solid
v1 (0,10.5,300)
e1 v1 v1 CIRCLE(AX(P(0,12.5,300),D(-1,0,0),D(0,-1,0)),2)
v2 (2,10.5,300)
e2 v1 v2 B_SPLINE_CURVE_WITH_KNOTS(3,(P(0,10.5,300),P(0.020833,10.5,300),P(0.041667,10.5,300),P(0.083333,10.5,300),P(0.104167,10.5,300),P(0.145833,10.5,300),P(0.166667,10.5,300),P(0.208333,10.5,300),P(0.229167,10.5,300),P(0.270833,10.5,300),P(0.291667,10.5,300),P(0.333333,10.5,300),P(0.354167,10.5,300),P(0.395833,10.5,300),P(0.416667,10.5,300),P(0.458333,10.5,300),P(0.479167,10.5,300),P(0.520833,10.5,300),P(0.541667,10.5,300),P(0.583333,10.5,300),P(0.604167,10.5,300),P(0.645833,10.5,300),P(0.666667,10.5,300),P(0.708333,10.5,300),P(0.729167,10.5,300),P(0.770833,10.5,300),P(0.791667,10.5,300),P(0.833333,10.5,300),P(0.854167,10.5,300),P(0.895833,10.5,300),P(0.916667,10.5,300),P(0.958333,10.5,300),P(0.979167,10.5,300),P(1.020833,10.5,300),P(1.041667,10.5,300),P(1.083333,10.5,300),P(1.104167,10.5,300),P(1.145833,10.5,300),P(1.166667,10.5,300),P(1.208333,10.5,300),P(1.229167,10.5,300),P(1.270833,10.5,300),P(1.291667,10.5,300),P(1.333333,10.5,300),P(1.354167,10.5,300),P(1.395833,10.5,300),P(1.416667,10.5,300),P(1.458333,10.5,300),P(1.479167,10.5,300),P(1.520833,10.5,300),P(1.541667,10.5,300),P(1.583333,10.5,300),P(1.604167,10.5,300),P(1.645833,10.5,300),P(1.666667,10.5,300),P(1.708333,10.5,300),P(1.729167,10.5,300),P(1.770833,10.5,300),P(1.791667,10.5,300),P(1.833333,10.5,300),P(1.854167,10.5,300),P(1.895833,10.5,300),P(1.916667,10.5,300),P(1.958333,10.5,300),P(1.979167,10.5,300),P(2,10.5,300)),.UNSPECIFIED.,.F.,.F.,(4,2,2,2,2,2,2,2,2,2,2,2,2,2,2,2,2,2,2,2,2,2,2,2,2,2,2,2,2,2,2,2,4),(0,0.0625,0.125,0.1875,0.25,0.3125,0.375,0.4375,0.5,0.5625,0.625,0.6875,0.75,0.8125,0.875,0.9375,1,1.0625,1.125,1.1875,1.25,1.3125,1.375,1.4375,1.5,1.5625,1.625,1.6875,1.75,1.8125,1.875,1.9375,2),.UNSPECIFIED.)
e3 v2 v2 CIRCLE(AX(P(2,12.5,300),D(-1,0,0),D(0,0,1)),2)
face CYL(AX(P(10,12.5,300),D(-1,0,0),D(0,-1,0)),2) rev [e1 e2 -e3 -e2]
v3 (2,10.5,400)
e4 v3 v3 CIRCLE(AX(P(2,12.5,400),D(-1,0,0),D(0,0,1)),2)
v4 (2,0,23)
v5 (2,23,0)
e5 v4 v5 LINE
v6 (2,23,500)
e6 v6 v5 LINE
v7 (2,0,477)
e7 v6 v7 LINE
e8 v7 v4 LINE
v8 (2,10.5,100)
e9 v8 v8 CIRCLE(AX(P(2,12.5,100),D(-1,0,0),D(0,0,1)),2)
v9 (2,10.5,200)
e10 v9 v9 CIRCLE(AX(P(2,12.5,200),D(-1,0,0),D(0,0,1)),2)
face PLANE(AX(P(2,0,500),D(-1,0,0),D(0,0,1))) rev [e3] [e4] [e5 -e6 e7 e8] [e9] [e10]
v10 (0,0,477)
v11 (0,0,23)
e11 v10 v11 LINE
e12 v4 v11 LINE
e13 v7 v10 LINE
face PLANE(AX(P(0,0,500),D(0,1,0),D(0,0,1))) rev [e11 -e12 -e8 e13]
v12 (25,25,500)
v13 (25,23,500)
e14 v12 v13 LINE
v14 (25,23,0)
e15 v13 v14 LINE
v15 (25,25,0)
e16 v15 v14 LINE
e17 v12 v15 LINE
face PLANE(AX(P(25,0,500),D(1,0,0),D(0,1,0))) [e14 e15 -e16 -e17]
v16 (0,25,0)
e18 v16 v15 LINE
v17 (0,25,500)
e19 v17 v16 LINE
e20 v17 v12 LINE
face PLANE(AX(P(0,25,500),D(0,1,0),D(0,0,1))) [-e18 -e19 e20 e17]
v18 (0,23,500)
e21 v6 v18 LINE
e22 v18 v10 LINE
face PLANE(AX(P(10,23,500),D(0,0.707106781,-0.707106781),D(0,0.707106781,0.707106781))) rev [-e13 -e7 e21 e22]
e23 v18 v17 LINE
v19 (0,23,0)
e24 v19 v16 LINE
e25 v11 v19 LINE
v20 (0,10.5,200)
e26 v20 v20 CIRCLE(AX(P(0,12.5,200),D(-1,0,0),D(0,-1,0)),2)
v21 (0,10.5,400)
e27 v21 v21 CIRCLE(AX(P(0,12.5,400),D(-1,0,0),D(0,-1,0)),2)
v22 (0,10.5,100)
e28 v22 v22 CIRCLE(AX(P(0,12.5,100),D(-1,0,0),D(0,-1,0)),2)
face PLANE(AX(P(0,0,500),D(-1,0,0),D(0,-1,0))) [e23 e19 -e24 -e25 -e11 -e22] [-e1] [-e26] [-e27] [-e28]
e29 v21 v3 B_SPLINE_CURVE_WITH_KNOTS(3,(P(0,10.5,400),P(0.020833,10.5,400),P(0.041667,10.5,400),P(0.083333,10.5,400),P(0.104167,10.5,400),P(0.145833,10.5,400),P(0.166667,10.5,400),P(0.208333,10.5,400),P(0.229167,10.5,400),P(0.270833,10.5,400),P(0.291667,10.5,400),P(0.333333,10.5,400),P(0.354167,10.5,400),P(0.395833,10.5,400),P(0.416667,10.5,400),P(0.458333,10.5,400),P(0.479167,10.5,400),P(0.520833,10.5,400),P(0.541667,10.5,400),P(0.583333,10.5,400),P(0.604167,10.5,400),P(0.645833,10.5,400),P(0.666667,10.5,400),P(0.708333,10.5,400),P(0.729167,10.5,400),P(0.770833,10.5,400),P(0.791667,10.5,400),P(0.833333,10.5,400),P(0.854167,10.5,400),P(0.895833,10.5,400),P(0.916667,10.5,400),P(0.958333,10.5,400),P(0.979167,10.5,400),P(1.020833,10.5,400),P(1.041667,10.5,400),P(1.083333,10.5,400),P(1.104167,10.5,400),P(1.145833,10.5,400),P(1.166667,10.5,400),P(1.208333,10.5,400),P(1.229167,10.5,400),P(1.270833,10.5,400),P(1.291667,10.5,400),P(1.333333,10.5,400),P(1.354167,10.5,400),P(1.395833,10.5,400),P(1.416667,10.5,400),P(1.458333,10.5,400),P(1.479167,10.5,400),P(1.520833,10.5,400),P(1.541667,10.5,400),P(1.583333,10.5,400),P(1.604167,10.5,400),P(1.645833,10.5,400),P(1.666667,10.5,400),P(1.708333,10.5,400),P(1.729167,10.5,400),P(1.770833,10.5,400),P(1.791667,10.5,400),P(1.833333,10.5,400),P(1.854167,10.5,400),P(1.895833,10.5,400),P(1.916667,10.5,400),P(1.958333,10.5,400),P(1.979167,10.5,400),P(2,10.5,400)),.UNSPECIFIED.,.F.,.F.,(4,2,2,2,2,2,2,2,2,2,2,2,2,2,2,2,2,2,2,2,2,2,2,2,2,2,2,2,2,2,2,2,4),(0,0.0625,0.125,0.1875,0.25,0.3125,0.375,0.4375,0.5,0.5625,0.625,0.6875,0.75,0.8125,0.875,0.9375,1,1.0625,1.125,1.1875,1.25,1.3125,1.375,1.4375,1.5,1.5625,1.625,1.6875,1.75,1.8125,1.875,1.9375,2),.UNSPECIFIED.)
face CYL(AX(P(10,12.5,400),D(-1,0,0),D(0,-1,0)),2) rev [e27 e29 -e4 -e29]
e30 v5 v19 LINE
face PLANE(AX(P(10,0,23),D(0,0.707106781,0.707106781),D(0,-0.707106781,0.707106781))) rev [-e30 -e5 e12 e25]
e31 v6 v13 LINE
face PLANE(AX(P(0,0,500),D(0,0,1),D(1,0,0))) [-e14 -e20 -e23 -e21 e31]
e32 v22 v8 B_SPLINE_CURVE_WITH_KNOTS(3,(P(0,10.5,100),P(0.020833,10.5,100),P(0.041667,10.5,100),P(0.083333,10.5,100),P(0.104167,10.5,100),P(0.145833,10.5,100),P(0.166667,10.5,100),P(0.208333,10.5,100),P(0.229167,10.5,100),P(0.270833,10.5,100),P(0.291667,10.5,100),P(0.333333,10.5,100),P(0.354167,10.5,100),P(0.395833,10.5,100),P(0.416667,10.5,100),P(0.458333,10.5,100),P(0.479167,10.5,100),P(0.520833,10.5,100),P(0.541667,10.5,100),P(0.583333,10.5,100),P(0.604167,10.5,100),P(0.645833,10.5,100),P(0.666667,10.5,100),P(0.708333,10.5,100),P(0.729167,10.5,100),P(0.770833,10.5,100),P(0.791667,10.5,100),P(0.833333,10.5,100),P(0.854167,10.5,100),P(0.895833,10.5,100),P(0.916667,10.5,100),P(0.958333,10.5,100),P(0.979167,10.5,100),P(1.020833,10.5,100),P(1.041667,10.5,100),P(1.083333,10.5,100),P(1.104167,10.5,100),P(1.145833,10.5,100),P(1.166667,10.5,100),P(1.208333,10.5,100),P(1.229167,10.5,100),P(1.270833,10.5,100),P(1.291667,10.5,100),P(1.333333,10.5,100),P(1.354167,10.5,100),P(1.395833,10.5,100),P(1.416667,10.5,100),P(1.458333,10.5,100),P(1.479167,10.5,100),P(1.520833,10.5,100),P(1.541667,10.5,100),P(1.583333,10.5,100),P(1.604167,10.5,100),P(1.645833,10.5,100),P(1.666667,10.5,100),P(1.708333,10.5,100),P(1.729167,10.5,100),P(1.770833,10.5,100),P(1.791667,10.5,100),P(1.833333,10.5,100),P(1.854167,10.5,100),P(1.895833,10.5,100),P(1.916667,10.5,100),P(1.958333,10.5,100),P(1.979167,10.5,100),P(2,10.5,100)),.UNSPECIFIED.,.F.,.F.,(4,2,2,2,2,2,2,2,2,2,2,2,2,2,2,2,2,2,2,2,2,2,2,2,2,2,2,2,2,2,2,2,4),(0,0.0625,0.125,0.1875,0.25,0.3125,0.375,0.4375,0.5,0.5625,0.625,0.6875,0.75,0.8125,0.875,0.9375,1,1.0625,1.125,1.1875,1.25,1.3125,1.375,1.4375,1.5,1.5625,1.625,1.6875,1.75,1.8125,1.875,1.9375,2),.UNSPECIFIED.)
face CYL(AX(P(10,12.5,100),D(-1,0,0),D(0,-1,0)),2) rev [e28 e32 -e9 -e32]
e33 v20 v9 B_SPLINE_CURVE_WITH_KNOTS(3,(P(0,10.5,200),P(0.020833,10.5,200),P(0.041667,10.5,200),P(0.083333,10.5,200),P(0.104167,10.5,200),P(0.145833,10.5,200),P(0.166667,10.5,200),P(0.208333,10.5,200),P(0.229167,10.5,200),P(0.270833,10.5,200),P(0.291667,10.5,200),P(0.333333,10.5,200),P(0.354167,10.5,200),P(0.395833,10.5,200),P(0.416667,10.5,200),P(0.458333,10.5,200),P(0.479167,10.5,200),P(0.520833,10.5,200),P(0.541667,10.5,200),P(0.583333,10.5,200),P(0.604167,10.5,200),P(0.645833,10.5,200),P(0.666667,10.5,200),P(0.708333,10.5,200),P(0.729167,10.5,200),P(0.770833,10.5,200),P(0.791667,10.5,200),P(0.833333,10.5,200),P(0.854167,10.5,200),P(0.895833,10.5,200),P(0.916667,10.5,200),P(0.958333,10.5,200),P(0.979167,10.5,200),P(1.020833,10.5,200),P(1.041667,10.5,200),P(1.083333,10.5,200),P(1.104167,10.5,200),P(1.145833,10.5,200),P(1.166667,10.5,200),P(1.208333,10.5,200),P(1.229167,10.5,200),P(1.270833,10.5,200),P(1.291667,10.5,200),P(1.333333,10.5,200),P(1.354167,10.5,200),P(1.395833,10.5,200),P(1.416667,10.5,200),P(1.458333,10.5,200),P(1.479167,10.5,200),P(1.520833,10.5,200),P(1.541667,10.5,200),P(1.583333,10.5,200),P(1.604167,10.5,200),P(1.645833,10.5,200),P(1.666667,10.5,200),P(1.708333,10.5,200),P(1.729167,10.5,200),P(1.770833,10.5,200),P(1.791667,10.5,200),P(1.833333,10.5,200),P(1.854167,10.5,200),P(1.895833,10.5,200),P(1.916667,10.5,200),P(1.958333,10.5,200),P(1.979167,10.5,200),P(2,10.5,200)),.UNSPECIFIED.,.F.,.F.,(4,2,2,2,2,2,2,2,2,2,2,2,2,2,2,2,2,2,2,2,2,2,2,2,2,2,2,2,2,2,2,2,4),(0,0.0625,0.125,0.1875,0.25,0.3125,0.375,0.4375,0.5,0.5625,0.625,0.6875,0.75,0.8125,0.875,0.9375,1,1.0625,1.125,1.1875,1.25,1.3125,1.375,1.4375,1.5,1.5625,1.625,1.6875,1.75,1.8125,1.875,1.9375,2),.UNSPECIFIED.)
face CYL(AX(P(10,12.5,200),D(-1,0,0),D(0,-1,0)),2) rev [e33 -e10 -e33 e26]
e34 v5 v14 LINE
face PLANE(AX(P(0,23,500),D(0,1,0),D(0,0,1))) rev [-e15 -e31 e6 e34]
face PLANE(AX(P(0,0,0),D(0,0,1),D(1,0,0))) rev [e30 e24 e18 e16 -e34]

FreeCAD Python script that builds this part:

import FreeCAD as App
import Part
import Sketcher


def add_polygon(sketch, points):
    """Adds a closed chain of lines whose ends are joined by coincident constraints."""
    first, n = sketch.GeometryCount, len(points)
    for a, b in zip(points, points[1:] + points[:1]):
        sketch.addGeometry(Part.LineSegment(App.Vector(*a, 0), App.Vector(*b, 0)), False)
    for i in range(n):
        sketch.addConstraint(Sketcher.Constraint("Coincident", first + i, 2, first + (i + 1) % n, 1))

doc = App.newDocument("Part")
params = doc.addObject("Spreadsheet::Sheet", "Params")
for row, (alias, value) in enumerate([
    ("sketch1_width", "2 mm"),
    ("sketch1_width2", "23 mm"),
    ("pad1_length", "500 mm"),
    ("sketch2_diameter", "4 mm"),
    ("pocket1_length", "10 mm"),
    ("sketch3_width", "23 mm"),
    ("pocket2_length", "10 mm"),
], start=1):
    params.set(f"A{row}", alias)
    params.set(f"B{row}", "=" + value)
    params.setAlias(f"B{row}", alias)

body = doc.addObject("PartDesign::Body", "Body")

# Sketch on XY plane
sketch1 = body.newObject("Sketcher::SketchObject", "Sketch")
sketch1.AttachmentSupport = (doc.getObject("XY_Plane"), [""])
sketch1.MapMode = "FlatFace"
add_polygon(sketch1, [(0, 25), (0, 0), (2, 0), (2, 23), (25, 23), (25, 25)])  # lines 0-5
sketch1.addConstraint([
    Sketcher.Constraint("Vertical", 0),
    Sketcher.Constraint("Horizontal", 1),
    Sketcher.Constraint("Vertical", 2),
    Sketcher.Constraint("Horizontal", 3),
    Sketcher.Constraint("Vertical", 4),
    Sketcher.Constraint("Horizontal", 5),
    Sketcher.Constraint("Coincident", 0, 2, -1, 1),
    Sketcher.Constraint("Equal", 5, 0),
    Sketcher.Constraint("Equal", 3, 2),
    Sketcher.Constraint("DistanceX", 1, 1, 1, 2, 2.0),
    Sketcher.Constraint("DistanceX", 3, 1, 3, 2, 23.0),
])
sketch1.setExpression("Constraints[15]", "Params.sketch1_width")
sketch1.setExpression("Constraints[16]", "Params.sketch1_width2")
pad1 = body.newObject("PartDesign::Pad", "Pad")
pad1.Profile = sketch1
pad1.setExpression("Length", "Params.pad1_length")

# Sketch on YZ plane
sketch2 = body.newObject("Sketcher::SketchObject", "Sketch001")
sketch2.AttachmentSupport = (doc.getObject("YZ_Plane"), [""])
sketch2.MapMode = "FlatFace"
sketch2.addGeometry([
    Part.Circle(App.Vector(12.5, 100, 0), App.Vector(0, 0, 1), 2),
    Part.Circle(App.Vector(12.5, 200, 0), App.Vector(0, 0, 1), 2),
    Part.Circle(App.Vector(12.5, 300, 0), App.Vector(0, 0, 1), 2),
    Part.Circle(App.Vector(12.5, 400, 0), App.Vector(0, 0, 1), 2),
], False)
sketch2.addConstraint([
    Sketcher.Constraint("Equal", 0, 1),
    Sketcher.Constraint("Equal", 1, 2),
    Sketcher.Constraint("Equal", 2, 3),
    Sketcher.Constraint("Vertical", 0, 3, 1, 3),
    Sketcher.Constraint("Vertical", 1, 3, 2, 3),
    Sketcher.Constraint("Vertical", 2, 3, 3, 3),
    Sketcher.Constraint("Diameter", 0, 4.0),
    Sketcher.Constraint("DistanceY", -1, 1, 0, 3, 100.0),
    Sketcher.Constraint("DistanceY", -1, 1, 1, 3, 200.0),
    Sketcher.Constraint("DistanceY", -1, 1, 2, 3, 300.0),
    Sketcher.Constraint("DistanceY", -1, 1, 3, 3, 400.0),
    Sketcher.Constraint("DistanceX", -1, 1, 0, 3, 12.5),
])
sketch2.setExpression("Constraints[6]", "Params.sketch2_diameter")
pocket1 = body.newObject("PartDesign::Pocket", "Pocket")
pocket1.Profile = sketch2
pocket1.setExpression("Length", "Params.pocket1_length")
pocket1.Reversed = True

# Sketch on YZ plane
sketch3 = body.newObject("Sketcher::SketchObject", "Sketch002")
sketch3.AttachmentSupport = (doc.getObject("YZ_Plane"), [""])
sketch3.MapMode = "FlatFace"
add_polygon(sketch3, [(0, 23), (23, 0), (0, 0)])  # lines 0-2
add_polygon(sketch3, [(23, 500), (0, 477), (0, 500)])  # lines 3-5
sketch3.addConstraint([
    Sketcher.Constraint("Horizontal", 1),
    Sketcher.Constraint("Vertical", 2),
    Sketcher.Constraint("Vertical", 4),
    Sketcher.Constraint("Horizontal", 5),
    Sketcher.Constraint("Coincident", 1, 2, -1, 1),
    Sketcher.Constraint("PointOnObject", 3, 2, -2),
    Sketcher.Constraint("Perpendicular", 0, 3),
    Sketcher.Constraint("Vertical", 0, 2, 5, 2),
    Sketcher.Constraint("Equal", 5, 2),
    Sketcher.Constraint("DistanceX", 1, 2, 1, 1, 23.0),
    Sketcher.Constraint("DistanceY", -1, 1, 3, 2, 477.0),
])
sketch3.setExpression("Constraints[15]", "Params.sketch3_width")
pocket2 = body.newObject("PartDesign::Pocket", "Pocket001")
pocket2.Profile = sketch3
pocket2.setExpression("Length", "Params.pocket2_length")
pocket2.Reversed = True

doc.recompute()
